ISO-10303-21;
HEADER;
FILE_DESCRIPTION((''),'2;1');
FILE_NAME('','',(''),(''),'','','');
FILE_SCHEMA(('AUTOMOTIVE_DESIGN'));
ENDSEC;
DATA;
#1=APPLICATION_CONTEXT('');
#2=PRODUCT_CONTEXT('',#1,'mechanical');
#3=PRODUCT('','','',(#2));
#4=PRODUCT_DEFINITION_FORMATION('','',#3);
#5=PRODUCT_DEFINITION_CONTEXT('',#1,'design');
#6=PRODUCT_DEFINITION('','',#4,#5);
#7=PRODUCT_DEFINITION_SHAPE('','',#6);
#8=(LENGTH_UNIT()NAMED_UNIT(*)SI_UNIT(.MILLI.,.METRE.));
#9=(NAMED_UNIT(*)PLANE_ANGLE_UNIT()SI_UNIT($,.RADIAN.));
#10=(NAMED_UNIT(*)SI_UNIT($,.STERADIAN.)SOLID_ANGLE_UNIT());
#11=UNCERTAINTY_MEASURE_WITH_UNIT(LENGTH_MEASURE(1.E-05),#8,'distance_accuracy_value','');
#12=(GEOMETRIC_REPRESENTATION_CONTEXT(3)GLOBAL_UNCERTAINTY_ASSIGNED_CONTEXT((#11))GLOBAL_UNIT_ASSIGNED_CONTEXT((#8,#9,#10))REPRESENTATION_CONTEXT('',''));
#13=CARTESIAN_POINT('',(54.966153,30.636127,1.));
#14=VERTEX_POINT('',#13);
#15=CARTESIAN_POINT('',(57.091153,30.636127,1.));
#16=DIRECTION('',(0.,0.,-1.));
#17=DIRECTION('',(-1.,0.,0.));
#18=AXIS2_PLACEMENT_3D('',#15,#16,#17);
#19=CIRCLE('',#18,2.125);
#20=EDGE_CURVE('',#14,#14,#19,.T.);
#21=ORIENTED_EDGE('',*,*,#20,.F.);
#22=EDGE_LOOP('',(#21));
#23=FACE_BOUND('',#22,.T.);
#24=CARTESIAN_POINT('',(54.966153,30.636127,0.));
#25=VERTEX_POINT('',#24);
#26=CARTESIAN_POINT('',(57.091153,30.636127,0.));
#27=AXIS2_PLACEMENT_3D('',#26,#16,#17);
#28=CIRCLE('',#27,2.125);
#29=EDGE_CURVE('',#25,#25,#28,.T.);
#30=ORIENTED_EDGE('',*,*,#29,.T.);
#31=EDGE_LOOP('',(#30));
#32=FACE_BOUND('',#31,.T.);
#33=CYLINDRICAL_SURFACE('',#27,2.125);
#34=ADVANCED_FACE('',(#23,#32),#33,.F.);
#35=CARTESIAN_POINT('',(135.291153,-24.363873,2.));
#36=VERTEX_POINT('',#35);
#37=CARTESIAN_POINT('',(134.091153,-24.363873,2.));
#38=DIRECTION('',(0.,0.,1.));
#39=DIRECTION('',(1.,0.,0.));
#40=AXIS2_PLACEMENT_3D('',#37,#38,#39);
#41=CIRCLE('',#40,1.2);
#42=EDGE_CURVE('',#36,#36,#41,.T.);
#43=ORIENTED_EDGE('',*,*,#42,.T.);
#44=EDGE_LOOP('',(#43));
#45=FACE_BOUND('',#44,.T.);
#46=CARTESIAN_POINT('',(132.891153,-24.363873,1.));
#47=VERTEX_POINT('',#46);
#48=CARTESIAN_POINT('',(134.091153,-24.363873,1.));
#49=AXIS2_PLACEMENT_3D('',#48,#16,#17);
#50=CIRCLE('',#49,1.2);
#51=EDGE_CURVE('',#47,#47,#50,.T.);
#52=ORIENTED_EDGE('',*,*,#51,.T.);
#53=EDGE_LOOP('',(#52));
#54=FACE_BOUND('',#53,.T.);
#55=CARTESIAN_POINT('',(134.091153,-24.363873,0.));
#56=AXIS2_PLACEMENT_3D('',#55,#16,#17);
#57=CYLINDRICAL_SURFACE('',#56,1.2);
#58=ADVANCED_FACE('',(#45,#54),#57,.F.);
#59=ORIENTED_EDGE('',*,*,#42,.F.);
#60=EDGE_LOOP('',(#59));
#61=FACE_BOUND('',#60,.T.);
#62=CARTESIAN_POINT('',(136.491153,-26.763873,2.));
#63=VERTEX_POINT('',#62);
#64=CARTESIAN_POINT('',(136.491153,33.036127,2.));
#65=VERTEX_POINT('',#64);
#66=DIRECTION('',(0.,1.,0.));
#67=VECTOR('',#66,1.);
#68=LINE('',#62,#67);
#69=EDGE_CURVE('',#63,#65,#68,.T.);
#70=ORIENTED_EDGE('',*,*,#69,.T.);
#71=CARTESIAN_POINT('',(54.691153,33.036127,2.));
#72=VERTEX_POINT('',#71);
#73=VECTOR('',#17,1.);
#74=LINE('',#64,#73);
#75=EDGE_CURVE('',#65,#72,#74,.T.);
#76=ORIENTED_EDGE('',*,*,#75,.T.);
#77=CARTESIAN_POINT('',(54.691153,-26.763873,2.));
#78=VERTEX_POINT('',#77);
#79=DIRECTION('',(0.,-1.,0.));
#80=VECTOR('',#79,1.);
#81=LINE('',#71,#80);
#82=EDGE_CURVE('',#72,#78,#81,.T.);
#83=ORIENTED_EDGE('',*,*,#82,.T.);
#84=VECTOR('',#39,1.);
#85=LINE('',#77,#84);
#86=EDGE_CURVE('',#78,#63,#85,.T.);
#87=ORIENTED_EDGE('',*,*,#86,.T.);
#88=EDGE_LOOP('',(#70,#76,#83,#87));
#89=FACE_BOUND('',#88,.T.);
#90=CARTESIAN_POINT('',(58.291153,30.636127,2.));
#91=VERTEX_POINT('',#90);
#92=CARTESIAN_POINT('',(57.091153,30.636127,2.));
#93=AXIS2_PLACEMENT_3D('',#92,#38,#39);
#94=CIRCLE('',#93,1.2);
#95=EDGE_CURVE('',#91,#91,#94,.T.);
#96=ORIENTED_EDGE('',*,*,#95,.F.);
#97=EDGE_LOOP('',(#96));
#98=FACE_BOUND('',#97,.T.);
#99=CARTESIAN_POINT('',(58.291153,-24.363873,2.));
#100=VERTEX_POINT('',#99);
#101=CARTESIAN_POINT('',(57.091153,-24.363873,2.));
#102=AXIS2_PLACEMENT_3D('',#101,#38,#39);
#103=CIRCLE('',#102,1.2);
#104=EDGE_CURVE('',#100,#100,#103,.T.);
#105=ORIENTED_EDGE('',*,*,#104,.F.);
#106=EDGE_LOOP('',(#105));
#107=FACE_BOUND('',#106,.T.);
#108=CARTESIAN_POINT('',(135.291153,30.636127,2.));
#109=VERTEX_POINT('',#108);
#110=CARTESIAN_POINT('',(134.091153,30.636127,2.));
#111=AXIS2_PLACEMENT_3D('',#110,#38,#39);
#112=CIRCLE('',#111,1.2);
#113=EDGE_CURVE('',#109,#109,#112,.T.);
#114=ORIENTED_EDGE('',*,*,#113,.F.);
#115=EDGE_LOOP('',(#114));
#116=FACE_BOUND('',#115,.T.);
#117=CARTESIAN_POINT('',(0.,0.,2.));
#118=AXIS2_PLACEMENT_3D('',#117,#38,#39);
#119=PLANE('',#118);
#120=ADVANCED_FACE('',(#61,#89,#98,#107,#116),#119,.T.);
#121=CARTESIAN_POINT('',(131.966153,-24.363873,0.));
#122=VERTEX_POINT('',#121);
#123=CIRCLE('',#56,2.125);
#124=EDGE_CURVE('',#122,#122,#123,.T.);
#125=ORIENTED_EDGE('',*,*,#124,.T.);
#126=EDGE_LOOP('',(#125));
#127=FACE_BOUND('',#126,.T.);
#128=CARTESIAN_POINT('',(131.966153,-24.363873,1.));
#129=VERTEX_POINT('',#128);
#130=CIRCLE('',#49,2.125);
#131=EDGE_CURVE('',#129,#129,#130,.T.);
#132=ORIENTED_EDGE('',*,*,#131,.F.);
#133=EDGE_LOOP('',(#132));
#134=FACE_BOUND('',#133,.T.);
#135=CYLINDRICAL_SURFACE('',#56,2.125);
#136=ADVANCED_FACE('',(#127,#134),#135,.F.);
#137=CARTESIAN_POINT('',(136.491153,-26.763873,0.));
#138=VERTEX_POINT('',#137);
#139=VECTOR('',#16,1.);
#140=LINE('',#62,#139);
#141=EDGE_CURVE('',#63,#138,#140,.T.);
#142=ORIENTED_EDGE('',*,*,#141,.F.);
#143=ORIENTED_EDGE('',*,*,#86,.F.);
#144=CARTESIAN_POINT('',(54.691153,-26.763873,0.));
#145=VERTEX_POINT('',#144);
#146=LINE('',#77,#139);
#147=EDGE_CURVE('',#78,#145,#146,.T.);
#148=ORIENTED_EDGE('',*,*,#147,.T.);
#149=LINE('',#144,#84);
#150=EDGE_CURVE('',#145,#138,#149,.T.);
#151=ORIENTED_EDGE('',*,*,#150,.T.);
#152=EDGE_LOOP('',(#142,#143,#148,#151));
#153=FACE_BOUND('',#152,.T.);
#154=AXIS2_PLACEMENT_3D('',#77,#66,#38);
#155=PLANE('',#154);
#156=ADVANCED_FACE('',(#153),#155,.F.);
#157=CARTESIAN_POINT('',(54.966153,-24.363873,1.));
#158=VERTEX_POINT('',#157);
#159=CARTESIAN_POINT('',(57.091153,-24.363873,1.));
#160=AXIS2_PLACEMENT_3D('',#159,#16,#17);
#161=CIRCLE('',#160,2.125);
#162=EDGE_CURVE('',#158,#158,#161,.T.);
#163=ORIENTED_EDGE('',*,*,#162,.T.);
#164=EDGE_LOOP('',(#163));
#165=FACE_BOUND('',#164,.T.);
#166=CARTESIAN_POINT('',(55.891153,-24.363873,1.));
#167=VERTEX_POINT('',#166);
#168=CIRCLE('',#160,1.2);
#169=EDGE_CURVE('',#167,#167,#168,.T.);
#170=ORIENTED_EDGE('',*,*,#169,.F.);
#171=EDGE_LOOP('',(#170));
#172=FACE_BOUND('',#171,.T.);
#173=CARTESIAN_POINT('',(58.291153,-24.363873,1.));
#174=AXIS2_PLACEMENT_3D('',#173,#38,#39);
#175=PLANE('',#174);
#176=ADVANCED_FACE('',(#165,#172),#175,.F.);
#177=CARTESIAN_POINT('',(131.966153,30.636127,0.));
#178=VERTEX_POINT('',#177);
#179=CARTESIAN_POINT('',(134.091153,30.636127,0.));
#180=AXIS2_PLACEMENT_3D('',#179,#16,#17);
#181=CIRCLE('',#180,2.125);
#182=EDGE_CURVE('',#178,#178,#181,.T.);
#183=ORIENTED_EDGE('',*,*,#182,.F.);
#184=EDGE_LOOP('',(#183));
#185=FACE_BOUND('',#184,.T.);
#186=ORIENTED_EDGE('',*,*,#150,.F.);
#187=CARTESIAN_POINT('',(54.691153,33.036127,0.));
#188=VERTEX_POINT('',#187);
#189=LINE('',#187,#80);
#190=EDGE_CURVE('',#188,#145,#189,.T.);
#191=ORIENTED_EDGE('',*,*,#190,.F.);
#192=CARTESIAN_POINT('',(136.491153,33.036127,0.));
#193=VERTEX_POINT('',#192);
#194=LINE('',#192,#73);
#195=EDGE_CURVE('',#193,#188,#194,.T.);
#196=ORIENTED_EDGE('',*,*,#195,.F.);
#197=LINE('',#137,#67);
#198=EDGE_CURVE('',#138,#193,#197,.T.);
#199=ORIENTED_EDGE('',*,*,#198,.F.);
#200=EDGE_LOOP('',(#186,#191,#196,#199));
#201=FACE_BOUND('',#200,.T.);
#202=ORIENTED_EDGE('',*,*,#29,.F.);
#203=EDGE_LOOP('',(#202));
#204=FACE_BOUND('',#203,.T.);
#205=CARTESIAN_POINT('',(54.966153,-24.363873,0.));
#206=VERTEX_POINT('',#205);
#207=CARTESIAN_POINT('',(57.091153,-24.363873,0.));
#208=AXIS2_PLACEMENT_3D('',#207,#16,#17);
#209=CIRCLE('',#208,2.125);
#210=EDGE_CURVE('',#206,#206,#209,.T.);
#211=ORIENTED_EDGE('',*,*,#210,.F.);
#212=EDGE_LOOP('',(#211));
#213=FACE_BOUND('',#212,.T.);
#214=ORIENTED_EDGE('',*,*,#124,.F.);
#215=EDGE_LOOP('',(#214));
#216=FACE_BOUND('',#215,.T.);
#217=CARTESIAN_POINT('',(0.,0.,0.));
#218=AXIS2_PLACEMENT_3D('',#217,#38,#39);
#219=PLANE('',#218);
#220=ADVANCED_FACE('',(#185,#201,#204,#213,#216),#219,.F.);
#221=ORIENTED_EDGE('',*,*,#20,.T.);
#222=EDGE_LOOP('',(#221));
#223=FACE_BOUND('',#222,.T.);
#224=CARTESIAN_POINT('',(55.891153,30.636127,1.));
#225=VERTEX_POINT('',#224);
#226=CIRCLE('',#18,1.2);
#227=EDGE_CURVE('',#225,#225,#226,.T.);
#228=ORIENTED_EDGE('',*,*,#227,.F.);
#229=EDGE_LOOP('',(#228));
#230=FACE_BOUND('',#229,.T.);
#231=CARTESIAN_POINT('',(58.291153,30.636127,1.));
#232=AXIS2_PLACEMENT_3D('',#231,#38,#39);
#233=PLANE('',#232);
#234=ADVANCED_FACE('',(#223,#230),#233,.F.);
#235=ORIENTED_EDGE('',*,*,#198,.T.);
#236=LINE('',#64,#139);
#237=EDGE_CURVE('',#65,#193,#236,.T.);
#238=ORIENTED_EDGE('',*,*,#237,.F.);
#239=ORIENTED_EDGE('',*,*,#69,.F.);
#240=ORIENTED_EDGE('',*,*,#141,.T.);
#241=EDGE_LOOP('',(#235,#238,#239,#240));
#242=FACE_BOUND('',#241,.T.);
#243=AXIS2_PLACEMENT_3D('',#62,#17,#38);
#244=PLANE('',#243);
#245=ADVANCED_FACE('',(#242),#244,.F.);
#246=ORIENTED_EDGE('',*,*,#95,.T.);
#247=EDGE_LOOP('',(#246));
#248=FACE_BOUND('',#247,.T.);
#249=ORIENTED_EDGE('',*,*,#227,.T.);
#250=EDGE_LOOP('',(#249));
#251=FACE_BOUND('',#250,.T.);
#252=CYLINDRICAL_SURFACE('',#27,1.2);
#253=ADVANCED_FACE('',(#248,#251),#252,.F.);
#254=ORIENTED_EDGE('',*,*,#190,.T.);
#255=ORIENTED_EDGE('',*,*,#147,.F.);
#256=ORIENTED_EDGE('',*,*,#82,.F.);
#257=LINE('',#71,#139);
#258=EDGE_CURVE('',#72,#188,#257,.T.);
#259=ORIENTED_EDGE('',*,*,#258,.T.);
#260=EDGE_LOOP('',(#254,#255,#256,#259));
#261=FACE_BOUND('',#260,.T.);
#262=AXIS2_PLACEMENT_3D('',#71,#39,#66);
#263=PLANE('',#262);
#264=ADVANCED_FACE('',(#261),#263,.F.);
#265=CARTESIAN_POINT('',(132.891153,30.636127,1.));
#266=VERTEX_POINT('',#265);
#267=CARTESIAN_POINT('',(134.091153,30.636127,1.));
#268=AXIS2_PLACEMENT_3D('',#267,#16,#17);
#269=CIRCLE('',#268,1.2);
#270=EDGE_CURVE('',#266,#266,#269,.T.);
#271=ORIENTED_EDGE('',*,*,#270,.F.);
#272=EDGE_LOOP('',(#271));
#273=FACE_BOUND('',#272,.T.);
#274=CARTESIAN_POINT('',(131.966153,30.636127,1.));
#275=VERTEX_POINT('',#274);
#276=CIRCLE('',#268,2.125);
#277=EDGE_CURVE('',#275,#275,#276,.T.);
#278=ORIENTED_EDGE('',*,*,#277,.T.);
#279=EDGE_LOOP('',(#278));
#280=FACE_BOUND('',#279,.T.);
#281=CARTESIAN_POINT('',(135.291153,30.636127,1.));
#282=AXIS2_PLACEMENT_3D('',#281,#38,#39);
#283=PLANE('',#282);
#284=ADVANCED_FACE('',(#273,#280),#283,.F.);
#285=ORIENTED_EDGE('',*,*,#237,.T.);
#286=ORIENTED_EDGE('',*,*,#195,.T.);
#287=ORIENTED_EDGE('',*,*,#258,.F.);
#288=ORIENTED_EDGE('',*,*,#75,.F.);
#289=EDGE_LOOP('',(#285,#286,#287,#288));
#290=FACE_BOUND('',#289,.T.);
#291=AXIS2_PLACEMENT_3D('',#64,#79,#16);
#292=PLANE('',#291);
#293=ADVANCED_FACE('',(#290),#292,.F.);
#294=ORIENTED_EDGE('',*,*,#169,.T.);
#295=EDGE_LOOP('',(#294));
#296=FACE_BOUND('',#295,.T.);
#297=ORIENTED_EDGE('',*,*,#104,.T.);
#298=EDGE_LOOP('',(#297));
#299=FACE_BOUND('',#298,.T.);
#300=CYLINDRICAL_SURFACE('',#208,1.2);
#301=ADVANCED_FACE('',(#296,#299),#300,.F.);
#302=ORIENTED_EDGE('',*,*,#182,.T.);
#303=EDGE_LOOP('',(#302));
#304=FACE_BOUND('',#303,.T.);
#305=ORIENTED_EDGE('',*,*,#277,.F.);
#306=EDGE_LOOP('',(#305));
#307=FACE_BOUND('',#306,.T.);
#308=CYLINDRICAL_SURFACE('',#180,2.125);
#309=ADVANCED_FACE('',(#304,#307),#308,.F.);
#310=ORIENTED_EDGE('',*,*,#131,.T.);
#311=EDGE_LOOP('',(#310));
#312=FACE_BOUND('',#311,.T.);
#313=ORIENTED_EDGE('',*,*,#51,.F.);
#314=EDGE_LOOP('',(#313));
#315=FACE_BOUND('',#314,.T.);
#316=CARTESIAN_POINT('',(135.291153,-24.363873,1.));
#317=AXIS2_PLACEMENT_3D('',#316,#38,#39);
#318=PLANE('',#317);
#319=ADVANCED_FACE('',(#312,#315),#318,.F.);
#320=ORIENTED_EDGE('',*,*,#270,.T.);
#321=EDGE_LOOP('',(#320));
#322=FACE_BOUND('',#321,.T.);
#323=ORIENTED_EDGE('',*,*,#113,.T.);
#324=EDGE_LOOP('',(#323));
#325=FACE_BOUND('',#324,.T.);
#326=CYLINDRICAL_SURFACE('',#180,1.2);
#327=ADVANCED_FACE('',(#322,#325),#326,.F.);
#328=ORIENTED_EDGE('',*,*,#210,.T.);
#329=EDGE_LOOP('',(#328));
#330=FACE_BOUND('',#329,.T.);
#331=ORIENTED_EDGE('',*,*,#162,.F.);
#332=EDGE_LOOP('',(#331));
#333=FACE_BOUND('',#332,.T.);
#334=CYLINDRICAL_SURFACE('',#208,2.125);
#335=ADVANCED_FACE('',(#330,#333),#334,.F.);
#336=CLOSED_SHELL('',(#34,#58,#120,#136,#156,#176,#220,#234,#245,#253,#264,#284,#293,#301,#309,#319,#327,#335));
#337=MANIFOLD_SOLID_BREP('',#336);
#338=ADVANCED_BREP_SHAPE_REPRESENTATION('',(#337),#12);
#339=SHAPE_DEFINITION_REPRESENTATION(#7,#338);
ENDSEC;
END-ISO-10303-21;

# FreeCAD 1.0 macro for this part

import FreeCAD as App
import Part
import Sketcher

V = App.Vector
Q = App.Units.Quantity


def add_polygon(sketch, points):
    """Adds a closed chain of lines whose ends are joined by coincident constraints."""
    first, n = sketch.GeometryCount, len(points)
    for a, b in zip(points, points[1:] + points[:1]):
        sketch.addGeometry(Part.LineSegment(App.Vector(*a, 0), App.Vector(*b, 0)), False)
    for i in range(n):
        sketch.addConstraint(Sketcher.Constraint("Coincident", first + i, 2, first + (i + 1) % n, 1))

doc = App.newDocument("Part")
params = doc.addObject("Spreadsheet::Sheet", "Params")
for row, (alias, value) in enumerate([
    ("sketch1_width", "81.8 mm"),
    ("sketch1_height", "59.8 mm"),
    ("pad1_length", "2 mm"),
    ("sketch2_diameter", "2.4 mm"),
    ("hole_diameter", "2.4 mm"),
    ("hole_depth", "6 mm"),
    ("hole_cbore_diameter", "4.25 mm"),
    ("hole_cbore_depth", "1 mm"),
], start=1):
    params.set(f"A{row}", alias)
    params.set(f"B{row}", "=" + value)
    params.setAlias(f"B{row}", alias)

body = doc.addObject("PartDesign::Body", "Body")

# Sketch on XY plane
sketch1 = doc.addObject("Sketcher::SketchObject", "Sketch")
body.addObject(sketch1)
sketch1.AttachmentSupport = (doc.XY_Plane, [""])
sketch1.MapMode = "FlatFace"
add_polygon(sketch1, [(55, 33), (55, -27), (136, -27), (136, 33)])  # lines 0-3
sketch1.addConstraint([
    Sketcher.Constraint("Vertical", 0),
    Sketcher.Constraint("Horizontal", 1),
    Sketcher.Constraint("Vertical", 2),
    Sketcher.Constraint("Horizontal", 3),
    Sketcher.Constraint("DistanceX", 1, 1, 1, 2, Q("81.8 mm")),
    Sketcher.Constraint("DistanceY", 0, 2, 0, 1, Q("59.8 mm")),
    Sketcher.Constraint("DistanceX", -1, 1, 0, 2, Q("54.691153 mm")),
    Sketcher.Constraint("DistanceY", 0, 2, -1, 1, Q("26.763873 mm")),
])
sketch1.setExpression("Constraints[8]", "Params.sketch1_width")
sketch1.setExpression("Constraints[9]", "Params.sketch1_height")
pad1 = doc.addObject("PartDesign::Pad", "Pad")
body.addObject(pad1)
pad1.Profile = sketch1
pad1.setExpression("Length", "Params.pad1_length")

# Sketch on XY plane
sketch2 = doc.addObject("Sketcher::SketchObject", "Sketch001")
body.addObject(sketch2)
sketch2.AttachmentSupport = (doc.XY_Plane, [""])
sketch2.MapMode = "FlatFace"
sketch2.addGeometry([
    Part.Circle(V(57.1, 30.6, 0), V(0, 0, 1), 1.2),
    Part.Circle(V(134.1, 30.6, 0), V(0, 0, 1), 1.2),
    Part.Circle(V(57.1, -24.4, 0), V(0, 0, 1), 1.2),
    Part.Circle(V(134.1, -24.4, 0), V(0, 0, 1), 1.2),
], False)
sketch2.addConstraint([
    Sketcher.Constraint("Equal", 0, 1),
    Sketcher.Constraint("Equal", 1, 2),
    Sketcher.Constraint("Equal", 2, 3),
    Sketcher.Constraint("Horizontal", 0, 3, 1, 3),
    Sketcher.Constraint("Horizontal", 2, 3, 3, 3),
    Sketcher.Constraint("Vertical", 0, 3, 2, 3),
    Sketcher.Constraint("Vertical", 1, 3, 3, 3),
    Sketcher.Constraint("Diameter", 0, Q("2.4 mm")),
    Sketcher.Constraint("DistanceX", 0, 3, 1, 3, Q("77 mm")),
    Sketcher.Constraint("DistanceY", 2, 3, 0, 3, Q("55 mm")),
    Sketcher.Constraint("DistanceX", -1, 1, 0, 3, Q("57.091153 mm")),
    Sketcher.Constraint("DistanceY", -1, 1, 0, 3, Q("30.636127 mm")),
])
sketch2.setExpression("Constraints[7]", "Params.sketch2_diameter")
doc.recompute()
hole = doc.addObject("PartDesign::Hole", "Hole")
body.addObject(hole)
hole.Profile = sketch2
hole.ThreadType = "None"
hole.setExpression("Diameter", "Params.hole_diameter")
hole.DepthType = "Dimension"
hole.setExpression("Depth", "Params.hole_depth")
hole.DrillPoint = "Angled"
hole.DrillPointAngle = 118
hole.HoleCutType = "Counterbore"
hole.setExpression("HoleCutDiameter", "Params.hole_cbore_diameter")
hole.setExpression("HoleCutDepth", "Params.hole_cbore_depth")
hole.Reversed = True

doc.recompute()
